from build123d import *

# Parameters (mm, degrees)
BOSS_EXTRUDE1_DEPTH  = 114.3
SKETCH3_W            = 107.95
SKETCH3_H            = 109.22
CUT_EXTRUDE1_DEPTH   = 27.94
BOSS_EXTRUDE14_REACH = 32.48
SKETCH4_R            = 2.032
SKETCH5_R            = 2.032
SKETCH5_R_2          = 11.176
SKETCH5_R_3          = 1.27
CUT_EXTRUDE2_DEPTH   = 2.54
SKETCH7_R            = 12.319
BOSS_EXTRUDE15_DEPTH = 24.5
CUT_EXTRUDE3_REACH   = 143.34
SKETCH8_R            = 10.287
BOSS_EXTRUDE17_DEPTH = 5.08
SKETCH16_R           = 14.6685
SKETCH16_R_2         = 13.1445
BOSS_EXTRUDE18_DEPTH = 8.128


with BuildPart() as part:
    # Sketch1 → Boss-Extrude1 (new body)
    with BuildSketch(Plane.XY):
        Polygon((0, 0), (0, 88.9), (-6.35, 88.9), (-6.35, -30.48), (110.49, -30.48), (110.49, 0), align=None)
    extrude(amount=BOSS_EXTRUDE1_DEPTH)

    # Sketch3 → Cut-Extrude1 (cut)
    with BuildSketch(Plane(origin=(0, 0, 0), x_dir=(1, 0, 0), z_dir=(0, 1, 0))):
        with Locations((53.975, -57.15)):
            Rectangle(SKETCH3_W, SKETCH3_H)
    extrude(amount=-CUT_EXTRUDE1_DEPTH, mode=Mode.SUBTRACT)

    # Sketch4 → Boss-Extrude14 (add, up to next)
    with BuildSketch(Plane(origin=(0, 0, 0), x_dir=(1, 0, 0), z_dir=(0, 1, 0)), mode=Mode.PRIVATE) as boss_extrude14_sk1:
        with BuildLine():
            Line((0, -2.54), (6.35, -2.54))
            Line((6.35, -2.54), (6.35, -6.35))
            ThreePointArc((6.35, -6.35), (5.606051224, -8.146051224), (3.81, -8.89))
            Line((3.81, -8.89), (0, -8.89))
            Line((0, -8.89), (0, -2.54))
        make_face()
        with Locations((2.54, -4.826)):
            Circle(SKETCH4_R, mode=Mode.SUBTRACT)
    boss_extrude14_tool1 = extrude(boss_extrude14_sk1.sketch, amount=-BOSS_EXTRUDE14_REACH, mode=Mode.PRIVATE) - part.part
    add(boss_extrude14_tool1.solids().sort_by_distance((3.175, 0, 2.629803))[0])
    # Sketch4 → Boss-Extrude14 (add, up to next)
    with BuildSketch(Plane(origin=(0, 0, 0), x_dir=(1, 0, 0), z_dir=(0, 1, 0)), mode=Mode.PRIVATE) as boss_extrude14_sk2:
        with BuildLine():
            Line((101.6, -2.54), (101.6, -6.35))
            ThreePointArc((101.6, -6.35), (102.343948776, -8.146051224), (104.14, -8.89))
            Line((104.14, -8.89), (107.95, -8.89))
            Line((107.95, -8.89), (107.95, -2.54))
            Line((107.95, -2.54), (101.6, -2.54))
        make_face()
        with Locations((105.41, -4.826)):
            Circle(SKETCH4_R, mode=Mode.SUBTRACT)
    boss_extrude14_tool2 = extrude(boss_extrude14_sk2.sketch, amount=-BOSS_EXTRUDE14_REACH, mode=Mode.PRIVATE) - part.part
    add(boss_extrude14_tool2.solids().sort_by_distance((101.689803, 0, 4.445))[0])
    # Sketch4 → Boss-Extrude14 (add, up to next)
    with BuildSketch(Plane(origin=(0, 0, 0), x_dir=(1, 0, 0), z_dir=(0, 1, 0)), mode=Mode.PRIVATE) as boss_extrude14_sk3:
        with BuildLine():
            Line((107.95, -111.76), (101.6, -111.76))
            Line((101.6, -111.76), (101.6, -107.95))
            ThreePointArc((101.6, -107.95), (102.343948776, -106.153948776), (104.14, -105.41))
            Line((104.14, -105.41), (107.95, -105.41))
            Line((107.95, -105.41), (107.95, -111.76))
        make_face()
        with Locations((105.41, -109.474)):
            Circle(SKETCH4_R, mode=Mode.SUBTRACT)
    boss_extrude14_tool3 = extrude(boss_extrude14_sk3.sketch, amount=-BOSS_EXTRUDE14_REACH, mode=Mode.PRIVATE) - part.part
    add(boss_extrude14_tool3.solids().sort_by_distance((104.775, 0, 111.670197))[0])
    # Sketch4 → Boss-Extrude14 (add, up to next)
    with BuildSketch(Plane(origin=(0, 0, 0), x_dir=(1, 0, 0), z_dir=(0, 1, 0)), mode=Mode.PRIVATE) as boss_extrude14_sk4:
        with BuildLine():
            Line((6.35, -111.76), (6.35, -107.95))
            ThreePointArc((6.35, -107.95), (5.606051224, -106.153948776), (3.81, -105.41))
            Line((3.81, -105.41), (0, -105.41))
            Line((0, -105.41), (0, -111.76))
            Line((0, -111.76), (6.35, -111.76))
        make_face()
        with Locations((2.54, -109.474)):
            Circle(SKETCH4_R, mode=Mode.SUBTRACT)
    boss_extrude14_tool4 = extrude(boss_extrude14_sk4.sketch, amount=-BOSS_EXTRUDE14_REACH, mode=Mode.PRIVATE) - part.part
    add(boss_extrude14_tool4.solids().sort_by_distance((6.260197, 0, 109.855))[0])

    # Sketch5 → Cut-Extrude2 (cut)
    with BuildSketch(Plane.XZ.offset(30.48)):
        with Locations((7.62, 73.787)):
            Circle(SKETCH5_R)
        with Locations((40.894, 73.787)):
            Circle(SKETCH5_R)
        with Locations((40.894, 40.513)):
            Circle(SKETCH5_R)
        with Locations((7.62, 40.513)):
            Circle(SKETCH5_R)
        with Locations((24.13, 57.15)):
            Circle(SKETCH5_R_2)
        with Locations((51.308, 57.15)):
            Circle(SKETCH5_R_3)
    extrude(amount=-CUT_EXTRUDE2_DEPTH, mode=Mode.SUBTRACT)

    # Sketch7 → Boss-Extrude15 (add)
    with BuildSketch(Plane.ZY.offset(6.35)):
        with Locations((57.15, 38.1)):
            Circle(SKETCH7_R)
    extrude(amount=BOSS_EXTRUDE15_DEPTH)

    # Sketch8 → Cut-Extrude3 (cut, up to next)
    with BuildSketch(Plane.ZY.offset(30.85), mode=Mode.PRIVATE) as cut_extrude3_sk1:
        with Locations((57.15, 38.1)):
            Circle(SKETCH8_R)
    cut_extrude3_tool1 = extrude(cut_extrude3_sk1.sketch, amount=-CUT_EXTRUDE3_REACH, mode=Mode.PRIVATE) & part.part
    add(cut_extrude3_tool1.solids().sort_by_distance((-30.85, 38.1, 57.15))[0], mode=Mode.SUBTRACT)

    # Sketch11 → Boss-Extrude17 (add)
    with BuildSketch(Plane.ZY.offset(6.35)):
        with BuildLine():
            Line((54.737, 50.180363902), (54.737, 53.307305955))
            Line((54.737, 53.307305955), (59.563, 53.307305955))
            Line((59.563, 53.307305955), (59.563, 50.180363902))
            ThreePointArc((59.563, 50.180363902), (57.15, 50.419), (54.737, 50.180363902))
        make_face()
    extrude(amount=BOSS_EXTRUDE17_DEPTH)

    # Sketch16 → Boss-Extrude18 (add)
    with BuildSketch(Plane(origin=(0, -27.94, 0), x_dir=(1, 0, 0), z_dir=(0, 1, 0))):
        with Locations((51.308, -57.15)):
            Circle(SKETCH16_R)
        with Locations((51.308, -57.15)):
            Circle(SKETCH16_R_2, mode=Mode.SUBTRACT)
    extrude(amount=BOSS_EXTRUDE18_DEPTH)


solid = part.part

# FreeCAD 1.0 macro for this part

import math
import FreeCAD as App
import Part
import Sketcher

V = App.Vector
Q = App.Units.Quantity

doc = App.newDocument("Part")
body = doc.addObject("PartDesign::Body", "Body")

# Sketch on XY plane
sketch1 = body.newObject("Sketcher::SketchObject", "Sketch")
sketch1.AttachmentSupport = (doc.getObject("XY_Plane"), [""])
sketch1.MapMode = "FlatFace"
sketch1.addGeometry([
    Part.LineSegment(V(0, 0, 0), V(0, 88.9, 0)),  # 0
    Part.LineSegment(V(0, 88.9, 0), V(-6.35, 88.9, 0)),  # 1
    Part.LineSegment(V(-6.35, 88.9, 0), V(-6.35, -30.48, 0)),  # 2
    Part.LineSegment(V(-6.35, -30.48, 0), V(110.49, -30.48, 0)),  # 3
    Part.LineSegment(V(110.49, -30.48, 0), V(110.49, 0, 0)),  # 4
    Part.LineSegment(V(110.49, 0, 0), V(0, 0, 0)),  # 5
], False)
sketch1.addConstraint([
    Sketcher.Constraint("Coincident", 0, 2, 1, 1),
    Sketcher.Constraint("Coincident", 1, 2, 2, 1),
    Sketcher.Constraint("Coincident", 2, 2, 3, 1),
    Sketcher.Constraint("Coincident", 3, 2, 4, 1),
    Sketcher.Constraint("Coincident", 4, 2, 5, 1),
    Sketcher.Constraint("Coincident", 5, 2, 0, 1),
    Sketcher.Constraint("Vertical", 0),
    Sketcher.Constraint("Horizontal", 1),
    Sketcher.Constraint("Vertical", 2),
    Sketcher.Constraint("Horizontal", 3),
    Sketcher.Constraint("Vertical", 4),
    Sketcher.Constraint("Horizontal", 5),
    Sketcher.Constraint("Coincident", 5, 2, -1, 1),
    Sketcher.Constraint("DistanceX", 3, 1, 3, 2, Q("4.6 in")),
    Sketcher.Constraint("DistanceY", 0, 1, 0, 2, Q("3.5 in")),
    Sketcher.Constraint("DistanceY", 2, 2, 2, 1, Q("4.7 in")),
    Sketcher.Constraint("DistanceX", 1, 2, 1, 1, Q("0.25 in")),
])
pad1 = body.newObject("PartDesign::Pad", "Pad")
pad1.Profile = sketch1
pad1.Length = Q("4.5 in")

# Sketch on XZ plane
sketch2 = body.newObject("Sketcher::SketchObject", "Sketch001")
sketch2.AttachmentSupport = (doc.getObject("XZ_Plane"), [""])
sketch2.MapMode = "FlatFace"
sketch2.addGeometry([
    Part.LineSegment(V(0, 2.54, 0), V(0, 111.76, 0)),
    Part.LineSegment(V(0, 111.76, 0), V(107.95, 111.76, 0)),
    Part.LineSegment(V(107.95, 111.76, 0), V(107.95, 2.54, 0)),
    Part.LineSegment(V(107.95, 2.54, 0), V(0, 2.54, 0)),
], False)
sketch2.addConstraint([
    Sketcher.Constraint("Coincident", 0, 2, 1, 1),
    Sketcher.Constraint("Coincident", 1, 2, 2, 1),
    Sketcher.Constraint("Coincident", 2, 2, 3, 1),
    Sketcher.Constraint("Coincident", 3, 2, 0, 1),
    Sketcher.Constraint("Vertical", 0),
    Sketcher.Constraint("Horizontal", 1),
    Sketcher.Constraint("Vertical", 2),
    Sketcher.Constraint("Horizontal", 3),
    Sketcher.Constraint("PointOnObject", 0, 2, -2),
    Sketcher.Constraint("DistanceY", 0, 1, 0, 2, Q("4.3 in")),
    Sketcher.Constraint("DistanceX", 1, 1, 1, 2, Q("4.25 in")),
    Sketcher.Constraint("DistanceY", -1, 1, 0, 2, Q("4.4 in")),
])
pocket1 = body.newObject("PartDesign::Pocket", "Pocket")
pocket1.Profile = sketch2
pocket1.Length = Q("1.1 in")
pocket1.Reversed = True

# Sketch on XZ plane
sketch3 = body.newObject("Sketcher::SketchObject", "Sketch002")
sketch3.AttachmentSupport = (doc.getObject("XZ_Plane"), [""])
sketch3.MapMode = "FlatFace"
sketch3.addGeometry([
    Part.LineSegment(V(6.35, 2.54, 0), V(0, 2.54, 0)),  # 0
    Part.LineSegment(V(0, 2.54, 0), V(0, 8.89, 0)),  # 1
    Part.LineSegment(V(0, 8.89, 0), V(3.81, 8.89, 0)),  # 2
    Part.ArcOfCircle(Part.Circle(V(3.81, 6.35, 0), V(0, 0, 1), 2.54), math.radians(0), math.radians(90)),  # 3
    Part.LineSegment(V(6.35, 6.35, 0), V(6.35, 2.54, 0)),  # 4
    Part.Circle(V(2.54, 4.826, 0), V(0, 0, 1), 2.032),  # 5
], False)
sketch3.addConstraint([
    Sketcher.Constraint("Coincident", 0, 2, 1, 1),
    Sketcher.Constraint("Coincident", 1, 2, 2, 1),
    Sketcher.Constraint("Tangent", 2, 2, 3, 2),
    Sketcher.Constraint("Tangent", 3, 1, 4, 1),
    Sketcher.Constraint("Coincident", 4, 2, 0, 1),
    Sketcher.Constraint("Horizontal", 0),
    Sketcher.Constraint("Vertical", 1),
    Sketcher.Constraint("Horizontal", 2),
    Sketcher.Constraint("Vertical", 4),
    Sketcher.Constraint("PointOnObject", 0, 2, -2),
    Sketcher.Constraint("Equal", 0, 1),
    Sketcher.Constraint("Radius", 3, Q("0.1 in")),
    Sketcher.Constraint("Diameter", 5, Q("0.16 in")),
    Sketcher.Constraint("DistanceX", 0, 2, 0, 1, Q("0.25 in")),
    Sketcher.Constraint("DistanceX", -1, 1, 5, 3, Q("0.1 in")),
    Sketcher.Constraint("DistanceY", -1, 1, 0, 2, Q("0.1 in")),
    Sketcher.Constraint("DistanceY", -1, 1, 5, 3, Q("0.19 in")),
])
pad2 = body.newObject("PartDesign::Pad", "Pad001")
pad2.Profile = sketch3
pad2.Type = "UpToFirst"

# Sketch on XZ plane
sketch4 = body.newObject("Sketcher::SketchObject", "Sketch003")
sketch4.AttachmentSupport = (doc.getObject("XZ_Plane"), [""])
sketch4.MapMode = "FlatFace"
sketch4.addGeometry([
    Part.LineSegment(V(101.6, 2.54, 0), V(101.6, 6.35, 0)),  # 0
    Part.ArcOfCircle(Part.Circle(V(104.14, 6.35, 0), V(0, 0, 1), 2.54), math.radians(90), math.radians(180)),  # 1
    Part.LineSegment(V(104.14, 8.89, 0), V(107.95, 8.89, 0)),  # 2
    Part.LineSegment(V(107.95, 8.89, 0), V(107.95, 2.54, 0)),  # 3
    Part.LineSegment(V(107.95, 2.54, 0), V(101.6, 2.54, 0)),  # 4
    Part.Circle(V(105.41, 4.826, 0), V(0, 0, 1), 2.032),  # 5
], False)
sketch4.addConstraint([
    Sketcher.Constraint("Tangent", 0, 2, 1, 2),
    Sketcher.Constraint("Tangent", 1, 1, 2, 1),
    Sketcher.Constraint("Coincident", 2, 2, 3, 1),
    Sketcher.Constraint("Coincident", 3, 2, 4, 1),
    Sketcher.Constraint("Coincident", 4, 2, 0, 1),
    Sketcher.Constraint("Vertical", 0),
    Sketcher.Constraint("Horizontal", 2),
    Sketcher.Constraint("Vertical", 3),
    Sketcher.Constraint("Horizontal", 4),
    Sketcher.Constraint("Equal", 2, 0),
    Sketcher.Constraint("Radius", 1, Q("0.1 in")),
    Sketcher.Constraint("Diameter", 5, Q("0.16 in")),
    Sketcher.Constraint("DistanceX", -1, 1, 0, 2, Q("4 in")),
    Sketcher.Constraint("DistanceX", 2, 1, 2, 2, Q("0.15 in")),
    Sketcher.Constraint("DistanceY", -1, 1, 3, 2, Q("0.1 in")),
    Sketcher.Constraint("DistanceX", 5, 3, 2, 2, Q("0.1 in")),
    Sketcher.Constraint("DistanceY", -1, 1, 5, 3, Q("0.19 in")),
])
pad3 = body.newObject("PartDesign::Pad", "Pad002")
pad3.Profile = sketch4
pad3.Type = "UpToFirst"

# Sketch on XZ plane
sketch5 = body.newObject("Sketcher::SketchObject", "Sketch004")
sketch5.AttachmentSupport = (doc.getObject("XZ_Plane"), [""])
sketch5.MapMode = "FlatFace"
sketch5.addGeometry([
    Part.LineSegment(V(101.6, 111.76, 0), V(107.95, 111.76, 0)),  # 0
    Part.LineSegment(V(107.95, 111.76, 0), V(107.95, 105.41, 0)),  # 1
    Part.LineSegment(V(107.95, 105.41, 0), V(104.14, 105.41, 0)),  # 2
    Part.ArcOfCircle(Part.Circle(V(104.14, 107.95, 0), V(0, 0, 1), 2.54), math.radians(-180), math.radians(-90)),  # 3
    Part.LineSegment(V(101.6, 107.95, 0), V(101.6, 111.76, 0)),  # 4
    Part.Circle(V(105.41, 109.474, 0), V(0, 0, 1), 2.032),  # 5
], False)
sketch5.addConstraint([
    Sketcher.Constraint("Coincident", 0, 2, 1, 1),
    Sketcher.Constraint("Coincident", 1, 2, 2, 1),
    Sketcher.Constraint("Tangent", 2, 2, 3, 2),
    Sketcher.Constraint("Tangent", 3, 1, 4, 1),
    Sketcher.Constraint("Coincident", 4, 2, 0, 1),
    Sketcher.Constraint("Horizontal", 0),
    Sketcher.Constraint("Vertical", 1),
    Sketcher.Constraint("Horizontal", 2),
    Sketcher.Constraint("Vertical", 4),
    Sketcher.Constraint("Equal", 0, 1),
    Sketcher.Constraint("Radius", 3, Q("0.1 in")),
    Sketcher.Constraint("Diameter", 5, Q("0.16 in")),
    Sketcher.Constraint("DistanceX", -1, 1, 3, 1, Q("4 in")),
    Sketcher.Constraint("DistanceX", 0, 1, 0, 2, Q("0.25 in")),
    Sketcher.Constraint("DistanceY", -1, 1, 0, 2, Q("4.4 in")),
    Sketcher.Constraint("DistanceX", 5, 3, 0, 2, Q("0.1 in")),
    Sketcher.Constraint("DistanceY", -1, 1, 5, 3, Q("4.31 in")),
])
pad4 = body.newObject("PartDesign::Pad", "Pad003")
pad4.Profile = sketch5
pad4.Type = "UpToFirst"

# Sketch on XZ plane
sketch6 = body.newObject("Sketcher::SketchObject", "Sketch005")
sketch6.AttachmentSupport = (doc.getObject("XZ_Plane"), [""])
sketch6.MapMode = "FlatFace"
sketch6.addGeometry([
    Part.LineSegment(V(6.35, 111.76, 0), V(6.35, 107.95, 0)),  # 0
    Part.ArcOfCircle(Part.Circle(V(3.81, 107.95, 0), V(0, 0, 1), 2.54), math.radians(-90), math.radians(0)),  # 1
    Part.LineSegment(V(3.81, 105.41, 0), V(0, 105.41, 0)),  # 2
    Part.LineSegment(V(0, 105.41, 0), V(0, 111.76, 0)),  # 3
    Part.LineSegment(V(0, 111.76, 0), V(6.35, 111.76, 0)),  # 4
    Part.Circle(V(2.54, 109.474, 0), V(0, 0, 1), 2.032),  # 5
], False)
sketch6.addConstraint([
    Sketcher.Constraint("Tangent", 0, 2, 1, 2),
    Sketcher.Constraint("Tangent", 1, 1, 2, 1),
    Sketcher.Constraint("Coincident", 2, 2, 3, 1),
    Sketcher.Constraint("Coincident", 3, 2, 4, 1),
    Sketcher.Constraint("Coincident", 4, 2, 0, 1),
    Sketcher.Constraint("Vertical", 0),
    Sketcher.Constraint("Horizontal", 2),
    Sketcher.Constraint("Vertical", 3),
    Sketcher.Constraint("Horizontal", 4),
    Sketcher.Constraint("PointOnObject", 2, 2, -2),
    Sketcher.Constraint("Equal", 2, 0),
    Sketcher.Constraint("Radius", 1, Q("0.1 in")),
    Sketcher.Constraint("Diameter", 5, Q("0.16 in")),
    Sketcher.Constraint("DistanceX", 2, 2, 2, 1, Q("0.15 in")),
    Sketcher.Constraint("DistanceX", -1, 1, 5, 3, Q("0.1 in")),
    Sketcher.Constraint("DistanceY", -1, 1, 3, 2, Q("4.4 in")),
    Sketcher.Constraint("DistanceY", -1, 1, 5, 3, Q("4.31 in")),
])
pad5 = body.newObject("PartDesign::Pad", "Pad004")
pad5.Profile = sketch6
pad5.Type = "UpToFirst"

# Sketch on XZ plane
sketch7 = body.newObject("Sketcher::SketchObject", "Sketch006")
sketch7.AttachmentSupport = (doc.getObject("XZ_Plane"), [""])
sketch7.MapMode = "FlatFace"
sketch7.AttachmentOffset = App.Placement(V(0, 0, 1.2 * 25.4), App.Rotation())
sketch7.addGeometry([
    Part.Circle(V(7.62, 73.787, 0), V(0, 0, 1), 2.032),  # 0
    Part.Circle(V(40.894, 73.787, 0), V(0, 0, 1), 2.032),  # 1
    Part.Circle(V(40.894, 40.513, 0), V(0, 0, 1), 2.032),  # 2
    Part.Circle(V(7.62, 40.513, 0), V(0, 0, 1), 2.032),  # 3
    Part.Circle(V(24.13, 57.15, 0), V(0, 0, 1), 11.176),  # 4
    Part.Circle(V(51.308, 57.15, 0), V(0, 0, 1), 1.27),  # 5
], False)
sketch7.addConstraint([
    Sketcher.Constraint("Equal", 0, 1),
    Sketcher.Constraint("Equal", 1, 2),
    Sketcher.Constraint("Equal", 2, 3),
    Sketcher.Constraint("Horizontal", 0, 3, 1, 3),
    Sketcher.Constraint("Horizontal", 2, 3, 3, 3),
    Sketcher.Constraint("Horizontal", 4, 3, 5, 3),
    Sketcher.Constraint("Vertical", 1, 3, 2, 3),
    Sketcher.Constraint("Vertical", 0, 3, 3, 3),
    Sketcher.Constraint("Diameter", 5, Q("0.1 in")),
    Sketcher.Constraint("Diameter", 0, Q("0.16 in")),
    Sketcher.Constraint("Diameter", 4, Q("0.88 in")),
    Sketcher.Constraint("DistanceX", -1, 1, 0, 3, Q("0.3 in")),
    Sketcher.Constraint("DistanceX", -1, 1, 1, 3, Q("1.61 in")),
    Sketcher.Constraint("DistanceX", -1, 1, 4, 3, Q("0.95 in")),
    Sketcher.Constraint("DistanceY", -1, 1, 4, 3, Q("2.25 in")),
    Sketcher.Constraint("DistanceX", -1, 1, 5, 3, Q("2.02 in")),
    Sketcher.Constraint("DistanceY", 2, 3, 1, 3, Q("1.31 in")),
    Sketcher.Constraint("DistanceY", -1, 1, 0, 3, Q("2.905 in")),
])
pocket2 = body.newObject("PartDesign::Pocket", "Pocket001")
pocket2.Profile = sketch7
pocket2.Length = Q("0.1 in")

# Sketch on YZ plane
sketch8 = body.newObject("Sketcher::SketchObject", "Sketch007")
sketch8.AttachmentSupport = (doc.getObject("YZ_Plane"), [""])
sketch8.MapMode = "FlatFace"
sketch8.AttachmentOffset = App.Placement(V(0, 0, -0.25 * 25.4), App.Rotation())
sketch8.addGeometry(Part.Circle(V(38.1, 57.15, 0), V(0, 0, 1), 12.319), False)
sketch8.addConstraint([
    Sketcher.Constraint("Diameter", 0, Q("0.97 in")),
    Sketcher.Constraint("DistanceX", -1, 1, 0, 3, Q("1.5 in")),
    Sketcher.Constraint("DistanceY", -1, 1, 0, 3, Q("2.25 in")),
])
pad6 = body.newObject("PartDesign::Pad", "Pad005")
pad6.Profile = sketch8
pad6.Length = 24.5
pad6.Reversed = True

# Sketch on YZ plane
sketch9 = body.newObject("Sketcher::SketchObject", "Sketch008")
sketch9.AttachmentSupport = (doc.getObject("YZ_Plane"), [""])
sketch9.MapMode = "FlatFace"
sketch9.AttachmentOffset = App.Placement(V(0, 0, -30.85), App.Rotation())
sketch9.addGeometry(Part.Circle(V(38.1, 57.15, 0), V(0, 0, 1), 10.287), False)
sketch9.addConstraint([
    Sketcher.Constraint("Diameter", 0, Q("0.81 in")),
    Sketcher.Constraint("DistanceX", -1, 1, 0, 3, Q("1.5 in")),
    Sketcher.Constraint("DistanceY", -1, 1, 0, 3, Q("2.25 in")),
])
pocket3 = body.newObject("PartDesign::Pocket", "Pocket002")
pocket3.Profile = sketch9
pocket3.Type = "UpToFirst"
pocket3.Reversed = True

# Sketch on YZ plane
sketch10 = body.newObject("Sketcher::SketchObject", "Sketch009")
sketch10.AttachmentSupport = (doc.getObject("YZ_Plane"), [""])
sketch10.MapMode = "FlatFace"
sketch10.AttachmentOffset = App.Placement(V(0, 0, -0.25 * 25.4), App.Rotation())
sketch10.addGeometry([
    Part.LineSegment(V(53.307306, 54.737, 0), V(50.180364, 54.737, 0)),
    Part.ArcOfCircle(Part.Circle(V(38.1, 57.15, 0), V(0, 0, 1), 12.319), math.radians(-11.295918), math.radians(11.295918)),
    Part.LineSegment(V(50.180364, 59.563, 0), V(53.307306, 59.563, 0)),
    Part.LineSegment(V(53.307306, 59.563, 0), V(53.307306, 54.737, 0)),
], False)
sketch10.addConstraint([
    Sketcher.Constraint("Coincident", 0, 2, 1, 1),
    Sketcher.Constraint("Coincident", 1, 2, 2, 1),
    Sketcher.Constraint("Coincident", 2, 2, 3, 1),
    Sketcher.Constraint("Coincident", 3, 2, 0, 1),
    Sketcher.Constraint("Horizontal", 0),
    Sketcher.Constraint("Horizontal", 2),
    Sketcher.Constraint("Vertical", 3),
    Sketcher.Constraint("Vertical", 0, 2, 1, 2),
    Sketcher.Constraint("Radius", 1, Q("0.485 in")),
    Sketcher.Constraint("DistanceY", 3, 2, 3, 1, Q("0.19 in")),
    Sketcher.Constraint("DistanceX", -1, 1, 1, 3, Q("1.5 in")),
    Sketcher.Constraint("DistanceY", -1, 1, 1, 3, Q("2.25 in")),
    Sketcher.Constraint("DistanceX", 0, 2, 0, 1, Q("3.126942 mm")),
])
pad7 = body.newObject("PartDesign::Pad", "Pad006")
pad7.Profile = sketch10
pad7.Length = Q("0.2 in")
pad7.Reversed = True

# Sketch on XZ plane
sketch11 = body.newObject("Sketcher::SketchObject", "Sketch010")
sketch11.AttachmentSupport = (doc.getObject("XZ_Plane"), [""])
sketch11.MapMode = "FlatFace"
sketch11.AttachmentOffset = App.Placement(V(0, 0, 1.1 * 25.4), App.Rotation())
sketch11.addGeometry([
    Part.Circle(V(51.308, 57.15, 0), V(0, 0, 1), 14.6685),
    Part.Circle(V(51.308, 57.15, 0), V(0, 0, 1), 13.1445),
], False)
sketch11.addConstraint([
    Sketcher.Constraint("Coincident", 1, 3, 0, 3),
    Sketcher.Constraint("Diameter", 0, Q("1.155 in")),
    Sketcher.Constraint("Diameter", 1, Q("1.035 in")),
    Sketcher.Constraint("DistanceX", -1, 1, 0, 3, Q("2.02 in")),
    Sketcher.Constraint("DistanceY", -1, 1, 0, 3, Q("2.25 in")),
])
pad8 = body.newObject("PartDesign::Pad", "Pad007")
pad8.Profile = sketch11
pad8.Length = Q("0.32 in")
pad8.Reversed = True

doc.recompute()
